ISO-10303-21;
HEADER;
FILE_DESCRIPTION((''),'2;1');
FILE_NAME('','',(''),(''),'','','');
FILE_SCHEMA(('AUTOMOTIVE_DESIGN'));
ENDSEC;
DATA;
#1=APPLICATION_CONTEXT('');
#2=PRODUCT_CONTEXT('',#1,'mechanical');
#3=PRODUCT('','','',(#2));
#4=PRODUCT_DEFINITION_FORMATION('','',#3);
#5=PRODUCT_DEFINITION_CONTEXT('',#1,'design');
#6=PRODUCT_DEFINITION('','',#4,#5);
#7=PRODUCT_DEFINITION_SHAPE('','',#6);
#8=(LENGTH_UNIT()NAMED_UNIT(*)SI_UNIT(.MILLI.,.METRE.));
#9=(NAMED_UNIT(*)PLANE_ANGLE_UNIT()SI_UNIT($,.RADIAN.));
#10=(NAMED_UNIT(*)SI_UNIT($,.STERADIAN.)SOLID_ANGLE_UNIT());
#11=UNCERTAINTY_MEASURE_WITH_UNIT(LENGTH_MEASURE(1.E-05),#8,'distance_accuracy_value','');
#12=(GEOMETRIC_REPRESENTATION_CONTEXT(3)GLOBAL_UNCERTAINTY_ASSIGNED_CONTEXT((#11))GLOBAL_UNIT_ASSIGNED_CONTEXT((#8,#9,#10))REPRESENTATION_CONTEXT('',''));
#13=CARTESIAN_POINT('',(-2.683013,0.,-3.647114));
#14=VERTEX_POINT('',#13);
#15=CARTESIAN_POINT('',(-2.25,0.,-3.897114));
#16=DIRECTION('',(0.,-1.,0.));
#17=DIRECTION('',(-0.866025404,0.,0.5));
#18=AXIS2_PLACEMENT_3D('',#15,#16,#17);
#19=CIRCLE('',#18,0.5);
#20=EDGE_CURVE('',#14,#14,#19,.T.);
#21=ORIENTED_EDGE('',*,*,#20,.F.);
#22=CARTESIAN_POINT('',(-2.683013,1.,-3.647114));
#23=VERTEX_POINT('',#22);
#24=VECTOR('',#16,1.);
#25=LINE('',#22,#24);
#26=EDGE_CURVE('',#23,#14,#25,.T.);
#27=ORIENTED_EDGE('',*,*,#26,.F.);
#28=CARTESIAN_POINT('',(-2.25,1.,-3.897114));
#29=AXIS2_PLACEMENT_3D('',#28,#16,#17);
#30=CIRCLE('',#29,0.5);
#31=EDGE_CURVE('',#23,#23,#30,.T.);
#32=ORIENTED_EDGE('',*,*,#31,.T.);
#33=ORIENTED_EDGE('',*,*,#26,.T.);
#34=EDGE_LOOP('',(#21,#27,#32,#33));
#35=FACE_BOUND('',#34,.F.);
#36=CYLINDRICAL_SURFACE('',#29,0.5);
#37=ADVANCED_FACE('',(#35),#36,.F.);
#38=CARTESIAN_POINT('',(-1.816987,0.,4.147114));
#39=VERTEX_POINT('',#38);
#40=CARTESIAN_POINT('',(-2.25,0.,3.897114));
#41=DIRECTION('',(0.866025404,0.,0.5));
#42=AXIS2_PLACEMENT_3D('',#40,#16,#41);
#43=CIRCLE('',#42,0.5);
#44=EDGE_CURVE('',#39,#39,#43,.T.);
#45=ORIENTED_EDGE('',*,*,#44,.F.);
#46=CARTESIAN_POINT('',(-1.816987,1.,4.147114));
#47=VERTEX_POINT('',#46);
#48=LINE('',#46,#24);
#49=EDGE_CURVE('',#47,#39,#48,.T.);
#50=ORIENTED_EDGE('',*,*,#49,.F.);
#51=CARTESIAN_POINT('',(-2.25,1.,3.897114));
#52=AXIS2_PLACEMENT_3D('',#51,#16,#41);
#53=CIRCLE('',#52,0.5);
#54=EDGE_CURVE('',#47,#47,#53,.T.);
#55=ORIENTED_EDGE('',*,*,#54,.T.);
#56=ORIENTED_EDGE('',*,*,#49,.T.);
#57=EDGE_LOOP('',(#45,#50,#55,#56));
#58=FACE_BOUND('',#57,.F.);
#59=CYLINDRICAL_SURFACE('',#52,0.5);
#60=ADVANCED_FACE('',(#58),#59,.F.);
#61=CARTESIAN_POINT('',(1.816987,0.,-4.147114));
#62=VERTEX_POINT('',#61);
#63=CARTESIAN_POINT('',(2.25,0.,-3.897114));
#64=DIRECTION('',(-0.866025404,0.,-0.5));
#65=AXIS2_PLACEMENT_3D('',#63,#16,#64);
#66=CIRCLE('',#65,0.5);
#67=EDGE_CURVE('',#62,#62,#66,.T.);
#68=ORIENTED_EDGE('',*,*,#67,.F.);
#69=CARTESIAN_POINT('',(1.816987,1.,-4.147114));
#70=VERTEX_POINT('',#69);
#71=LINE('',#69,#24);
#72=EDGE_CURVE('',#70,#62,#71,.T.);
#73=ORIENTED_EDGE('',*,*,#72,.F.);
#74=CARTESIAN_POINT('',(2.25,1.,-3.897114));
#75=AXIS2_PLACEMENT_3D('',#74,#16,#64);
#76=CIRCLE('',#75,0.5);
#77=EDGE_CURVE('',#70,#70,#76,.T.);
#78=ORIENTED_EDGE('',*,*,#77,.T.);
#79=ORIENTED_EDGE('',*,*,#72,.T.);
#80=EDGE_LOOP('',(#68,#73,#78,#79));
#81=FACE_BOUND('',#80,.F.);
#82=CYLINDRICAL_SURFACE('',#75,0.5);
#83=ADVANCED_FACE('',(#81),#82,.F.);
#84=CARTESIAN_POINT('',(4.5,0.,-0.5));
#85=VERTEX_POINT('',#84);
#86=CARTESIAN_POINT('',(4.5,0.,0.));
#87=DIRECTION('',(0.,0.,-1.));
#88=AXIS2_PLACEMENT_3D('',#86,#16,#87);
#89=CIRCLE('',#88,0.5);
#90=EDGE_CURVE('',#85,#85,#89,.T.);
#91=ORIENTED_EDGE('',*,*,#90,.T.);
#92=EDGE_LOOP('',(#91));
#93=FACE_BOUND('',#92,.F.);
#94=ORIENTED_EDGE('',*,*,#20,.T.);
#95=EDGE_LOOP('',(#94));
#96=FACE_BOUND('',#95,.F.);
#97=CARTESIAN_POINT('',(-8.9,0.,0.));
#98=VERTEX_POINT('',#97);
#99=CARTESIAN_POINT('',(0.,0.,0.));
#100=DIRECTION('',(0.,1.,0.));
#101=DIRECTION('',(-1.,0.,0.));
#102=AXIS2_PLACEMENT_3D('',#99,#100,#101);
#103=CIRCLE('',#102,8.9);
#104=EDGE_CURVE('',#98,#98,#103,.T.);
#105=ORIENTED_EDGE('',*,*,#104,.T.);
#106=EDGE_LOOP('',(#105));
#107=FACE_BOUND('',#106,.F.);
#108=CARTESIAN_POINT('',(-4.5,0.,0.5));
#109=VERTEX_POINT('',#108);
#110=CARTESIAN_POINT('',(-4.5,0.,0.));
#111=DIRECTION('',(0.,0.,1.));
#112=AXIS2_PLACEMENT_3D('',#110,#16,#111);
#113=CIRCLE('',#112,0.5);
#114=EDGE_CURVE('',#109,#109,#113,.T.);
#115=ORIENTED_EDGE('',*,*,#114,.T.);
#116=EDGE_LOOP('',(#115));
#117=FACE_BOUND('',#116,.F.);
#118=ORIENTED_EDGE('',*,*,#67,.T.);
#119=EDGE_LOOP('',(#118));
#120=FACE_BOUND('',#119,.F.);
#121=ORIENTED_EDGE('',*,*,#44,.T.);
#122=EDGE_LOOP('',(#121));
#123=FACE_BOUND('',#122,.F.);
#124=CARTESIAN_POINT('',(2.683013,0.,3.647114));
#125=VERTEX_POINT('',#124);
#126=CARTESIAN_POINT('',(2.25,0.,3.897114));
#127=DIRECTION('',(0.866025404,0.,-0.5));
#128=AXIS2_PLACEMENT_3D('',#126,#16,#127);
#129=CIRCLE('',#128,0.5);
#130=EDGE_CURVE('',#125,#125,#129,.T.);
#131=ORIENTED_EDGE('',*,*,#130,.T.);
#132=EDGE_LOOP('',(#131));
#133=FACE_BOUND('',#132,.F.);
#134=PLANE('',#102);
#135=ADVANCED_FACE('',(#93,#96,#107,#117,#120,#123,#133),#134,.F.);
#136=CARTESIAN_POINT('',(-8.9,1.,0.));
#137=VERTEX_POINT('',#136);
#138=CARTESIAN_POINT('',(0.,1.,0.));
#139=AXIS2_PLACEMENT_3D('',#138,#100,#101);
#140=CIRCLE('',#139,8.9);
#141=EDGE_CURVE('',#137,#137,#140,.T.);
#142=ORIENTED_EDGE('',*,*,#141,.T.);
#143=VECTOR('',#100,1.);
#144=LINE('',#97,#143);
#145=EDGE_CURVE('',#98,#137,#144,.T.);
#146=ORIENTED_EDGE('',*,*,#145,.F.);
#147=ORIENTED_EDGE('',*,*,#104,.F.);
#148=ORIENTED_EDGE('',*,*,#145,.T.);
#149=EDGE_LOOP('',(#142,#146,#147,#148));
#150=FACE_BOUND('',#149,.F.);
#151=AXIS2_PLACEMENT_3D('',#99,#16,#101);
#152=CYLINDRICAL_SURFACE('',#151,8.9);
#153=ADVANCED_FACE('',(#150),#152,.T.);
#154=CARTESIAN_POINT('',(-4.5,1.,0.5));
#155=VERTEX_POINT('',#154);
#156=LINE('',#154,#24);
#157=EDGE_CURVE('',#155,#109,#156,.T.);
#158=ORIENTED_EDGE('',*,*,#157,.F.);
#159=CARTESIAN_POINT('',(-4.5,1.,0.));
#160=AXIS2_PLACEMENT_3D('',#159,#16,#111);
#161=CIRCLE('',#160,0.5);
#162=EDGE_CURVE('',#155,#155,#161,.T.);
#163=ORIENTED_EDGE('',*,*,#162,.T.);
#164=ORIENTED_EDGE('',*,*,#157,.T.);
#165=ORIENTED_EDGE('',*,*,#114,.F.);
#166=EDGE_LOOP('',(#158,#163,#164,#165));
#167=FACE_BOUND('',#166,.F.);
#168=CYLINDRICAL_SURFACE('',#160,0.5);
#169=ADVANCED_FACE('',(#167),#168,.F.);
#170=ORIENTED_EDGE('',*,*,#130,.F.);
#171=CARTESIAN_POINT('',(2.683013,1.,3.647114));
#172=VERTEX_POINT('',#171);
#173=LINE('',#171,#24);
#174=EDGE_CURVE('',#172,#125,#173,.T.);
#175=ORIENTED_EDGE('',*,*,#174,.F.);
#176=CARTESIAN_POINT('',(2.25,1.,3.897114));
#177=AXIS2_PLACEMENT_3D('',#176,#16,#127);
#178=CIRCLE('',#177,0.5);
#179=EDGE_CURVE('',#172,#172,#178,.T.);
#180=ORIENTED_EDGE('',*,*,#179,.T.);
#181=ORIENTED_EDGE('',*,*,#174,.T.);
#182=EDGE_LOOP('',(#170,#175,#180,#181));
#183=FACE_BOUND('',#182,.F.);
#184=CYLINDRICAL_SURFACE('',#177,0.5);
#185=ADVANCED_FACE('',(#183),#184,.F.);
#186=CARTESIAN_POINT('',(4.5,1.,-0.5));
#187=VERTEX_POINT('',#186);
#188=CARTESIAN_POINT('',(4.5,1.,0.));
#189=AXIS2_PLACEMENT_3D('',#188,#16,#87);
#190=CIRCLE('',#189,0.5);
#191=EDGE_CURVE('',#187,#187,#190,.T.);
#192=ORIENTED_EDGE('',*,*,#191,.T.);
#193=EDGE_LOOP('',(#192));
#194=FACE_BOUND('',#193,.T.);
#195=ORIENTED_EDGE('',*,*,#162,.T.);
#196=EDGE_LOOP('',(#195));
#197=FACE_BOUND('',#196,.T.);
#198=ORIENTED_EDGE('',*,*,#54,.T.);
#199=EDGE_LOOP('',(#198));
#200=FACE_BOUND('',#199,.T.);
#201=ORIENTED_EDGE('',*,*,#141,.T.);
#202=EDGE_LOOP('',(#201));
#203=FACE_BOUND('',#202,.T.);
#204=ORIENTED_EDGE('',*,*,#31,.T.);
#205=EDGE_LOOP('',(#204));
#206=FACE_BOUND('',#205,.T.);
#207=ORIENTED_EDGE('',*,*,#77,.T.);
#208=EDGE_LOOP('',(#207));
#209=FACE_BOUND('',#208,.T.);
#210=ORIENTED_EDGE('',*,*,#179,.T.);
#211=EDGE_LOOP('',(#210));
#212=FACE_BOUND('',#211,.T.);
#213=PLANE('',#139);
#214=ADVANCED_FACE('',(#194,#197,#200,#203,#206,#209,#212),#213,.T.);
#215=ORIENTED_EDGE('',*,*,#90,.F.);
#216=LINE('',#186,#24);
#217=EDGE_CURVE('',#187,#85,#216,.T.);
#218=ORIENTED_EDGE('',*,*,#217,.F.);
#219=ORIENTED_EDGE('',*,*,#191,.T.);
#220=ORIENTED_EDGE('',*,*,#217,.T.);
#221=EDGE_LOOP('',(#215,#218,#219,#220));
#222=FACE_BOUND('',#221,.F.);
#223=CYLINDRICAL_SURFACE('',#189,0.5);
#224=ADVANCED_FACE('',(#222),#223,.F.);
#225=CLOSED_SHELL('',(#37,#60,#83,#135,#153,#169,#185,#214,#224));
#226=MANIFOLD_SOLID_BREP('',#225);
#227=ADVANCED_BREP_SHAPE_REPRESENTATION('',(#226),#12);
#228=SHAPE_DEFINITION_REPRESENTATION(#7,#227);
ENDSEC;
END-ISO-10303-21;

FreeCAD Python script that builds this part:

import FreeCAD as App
import Part
import Sketcher

doc = App.newDocument("Part")
body = doc.addObject("PartDesign::Body", "Body")

# Sketch on XZ plane
sketch1 = doc.addObject("Sketcher::SketchObject", "Sketch")
body.addObject(sketch1)
sketch1.AttachmentSupport = (doc.XZ_Plane, [""])
sketch1.MapMode = "FlatFace"
sketch1.addGeometry(Part.Circle(App.Vector(0, 0, 0), App.Vector(0, 0, 1), 8.9), False)
sketch1.addConstraint([
    Sketcher.Constraint("Coincident", 0, 3, -1, 1),
    Sketcher.Constraint("Diameter", 0, 17.8),
])
pad1 = doc.addObject("PartDesign::Pad", "Pad")
body.addObject(pad1)
pad1.Profile = sketch1
pad1.Length = 1
pad1.Reversed = True

# Sketch on XZ plane
sketch2 = doc.addObject("Sketcher::SketchObject", "Sketch001")
body.addObject(sketch2)
sketch2.AttachmentSupport = (doc.XZ_Plane, [""])
sketch2.MapMode = "FlatFace"
sketch2.AttachmentOffset = App.Placement(App.Vector(0, 0, -1), App.Rotation())
sketch2.addGeometry(Part.Circle(App.Vector(-4.5, 0, 0), App.Vector(0, 0, 1), 0.5), False)
sketch2.addConstraint([
    Sketcher.Constraint("PointOnObject", 0, 3, -1),
    Sketcher.Constraint("Diameter", 0, 1.0),
    Sketcher.Constraint("DistanceX", 0, 3, -1, 1, 4.5),
])
doc.recompute()
hole = doc.addObject("PartDesign::Hole", "Hole")
body.addObject(hole)
hole.Profile = sketch2
hole.ThreadType = "None"
hole.Diameter = 1
hole.DepthType = "ThroughAll"
hole.Reversed = True
doc.recompute()

polarpattern = doc.addObject("PartDesign::PolarPattern", "PolarPattern")
body.addObject(polarpattern)
polarpattern.Originals = [hole]
polarpattern.Axis = (doc.Y_Axis, [""])
polarpattern.Angle = 360
polarpattern.Occurrences = 6
body.Tip = polarpattern

doc.recompute()
